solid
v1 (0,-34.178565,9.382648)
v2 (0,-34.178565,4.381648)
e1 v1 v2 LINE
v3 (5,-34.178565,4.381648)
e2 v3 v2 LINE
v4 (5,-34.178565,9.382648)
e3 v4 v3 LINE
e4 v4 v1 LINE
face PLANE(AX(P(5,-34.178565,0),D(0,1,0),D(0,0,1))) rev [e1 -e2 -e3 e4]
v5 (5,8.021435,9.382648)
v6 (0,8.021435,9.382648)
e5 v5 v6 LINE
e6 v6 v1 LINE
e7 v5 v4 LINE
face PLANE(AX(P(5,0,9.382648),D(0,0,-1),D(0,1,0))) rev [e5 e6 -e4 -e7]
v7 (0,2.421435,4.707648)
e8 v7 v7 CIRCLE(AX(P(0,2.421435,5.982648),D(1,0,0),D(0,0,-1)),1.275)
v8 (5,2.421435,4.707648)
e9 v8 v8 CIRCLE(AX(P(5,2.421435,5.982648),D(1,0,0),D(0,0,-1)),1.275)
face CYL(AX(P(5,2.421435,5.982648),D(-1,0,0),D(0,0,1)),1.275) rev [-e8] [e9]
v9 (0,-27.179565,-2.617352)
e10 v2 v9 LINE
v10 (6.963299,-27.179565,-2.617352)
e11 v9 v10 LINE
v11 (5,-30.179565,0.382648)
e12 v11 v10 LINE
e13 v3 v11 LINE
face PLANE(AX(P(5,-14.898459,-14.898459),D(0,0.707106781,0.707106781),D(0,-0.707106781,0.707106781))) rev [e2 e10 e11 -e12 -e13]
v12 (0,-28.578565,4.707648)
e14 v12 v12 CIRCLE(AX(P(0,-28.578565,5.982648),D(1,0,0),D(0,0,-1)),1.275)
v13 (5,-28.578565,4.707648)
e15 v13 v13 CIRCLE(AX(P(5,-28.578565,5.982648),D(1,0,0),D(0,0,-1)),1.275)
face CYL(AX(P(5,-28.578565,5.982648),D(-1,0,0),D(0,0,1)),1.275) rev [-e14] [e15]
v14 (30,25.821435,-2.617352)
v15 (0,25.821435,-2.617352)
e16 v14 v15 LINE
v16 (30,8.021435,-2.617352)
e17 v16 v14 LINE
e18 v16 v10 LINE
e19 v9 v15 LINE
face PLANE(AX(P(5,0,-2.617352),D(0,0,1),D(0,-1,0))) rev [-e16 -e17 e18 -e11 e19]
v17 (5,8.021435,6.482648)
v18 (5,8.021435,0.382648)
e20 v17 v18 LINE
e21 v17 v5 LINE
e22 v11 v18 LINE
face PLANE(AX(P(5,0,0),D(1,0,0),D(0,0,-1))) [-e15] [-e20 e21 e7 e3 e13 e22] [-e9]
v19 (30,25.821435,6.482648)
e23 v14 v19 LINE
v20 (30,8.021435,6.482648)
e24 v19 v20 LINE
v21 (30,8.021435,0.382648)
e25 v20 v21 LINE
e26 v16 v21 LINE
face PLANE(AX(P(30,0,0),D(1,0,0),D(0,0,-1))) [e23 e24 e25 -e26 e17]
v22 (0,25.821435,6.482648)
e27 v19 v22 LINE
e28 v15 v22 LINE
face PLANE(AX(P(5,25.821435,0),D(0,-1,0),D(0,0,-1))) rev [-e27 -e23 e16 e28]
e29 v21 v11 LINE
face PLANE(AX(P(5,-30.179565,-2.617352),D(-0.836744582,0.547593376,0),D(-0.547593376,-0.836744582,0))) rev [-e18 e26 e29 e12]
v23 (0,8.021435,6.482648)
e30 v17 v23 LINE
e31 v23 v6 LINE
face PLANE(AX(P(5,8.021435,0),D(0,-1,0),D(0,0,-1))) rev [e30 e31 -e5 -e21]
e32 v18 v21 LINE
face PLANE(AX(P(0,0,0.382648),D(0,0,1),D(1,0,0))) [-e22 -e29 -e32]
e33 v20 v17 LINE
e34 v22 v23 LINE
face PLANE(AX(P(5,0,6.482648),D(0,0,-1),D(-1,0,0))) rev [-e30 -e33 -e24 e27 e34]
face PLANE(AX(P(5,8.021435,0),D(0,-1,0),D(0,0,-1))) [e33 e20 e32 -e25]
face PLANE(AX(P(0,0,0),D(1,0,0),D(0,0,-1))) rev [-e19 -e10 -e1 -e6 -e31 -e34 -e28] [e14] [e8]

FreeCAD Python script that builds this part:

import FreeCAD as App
import Part
import Sketcher

V = App.Vector
Q = App.Units.Quantity

doc = App.newDocument("Part")
body = doc.addObject("PartDesign::Body", "Body")

# Sketch on YZ plane
sketch1 = doc.addObject("Sketcher::SketchObject", "Sketch")
body.addObject(sketch1)
sketch1.AttachmentSupport = (doc.YZ_Plane, [""])
sketch1.MapMode = "FlatFace"
sketch1.addGeometry(Part.LineSegment(V(-34.2, 4.4, 0), V(-30.2, 0.4, 0)), False)
sketch1.addGeometry(Part.LineSegment(V(-30.2, 0.4, 0), V(8, 0.4, 0)), False)
sketch1.addGeometry(Part.LineSegment(V(8, 0.4, 0), V(8, -2.6, 0)), False)
sketch1.addGeometry(Part.LineSegment(V(8, -2.6, 0), V(25.8, -2.6, 0)), False)
sketch1.addGeometry(Part.LineSegment(V(25.8, -2.6, 0), V(25.8, 6.5, 0)), False)
sketch1.addGeometry(Part.LineSegment(V(25.8, 6.5, 0), V(8, 6.5, 0)), False)
sketch1.addGeometry(Part.LineSegment(V(8, 6.5, 0), V(8, 9.4, 0)), False)
sketch1.addGeometry(Part.LineSegment(V(8, 9.4, 0), V(-34.2, 9.4, 0)), False)
sketch1.addGeometry(Part.LineSegment(V(-34.2, 9.4, 0), V(-34.2, 4.4, 0)), False)
sketch1.addGeometry(Part.Circle(V(-28.6, 6, 0), V(0, 0, 1), 1.3), False)
sketch1.addGeometry(Part.Circle(V(2.4, 6, 0), V(0, 0, 1), 1.3), False)
sketch1.addConstraint(Sketcher.Constraint("Coincident", 0, 2, 1, 1))
sketch1.addConstraint(Sketcher.Constraint("Coincident", 1, 2, 2, 1))
sketch1.addConstraint(Sketcher.Constraint("Coincident", 2, 2, 3, 1))
sketch1.addConstraint(Sketcher.Constraint("Coincident", 3, 2, 4, 1))
sketch1.addConstraint(Sketcher.Constraint("Coincident", 4, 2, 5, 1))
sketch1.addConstraint(Sketcher.Constraint("Coincident", 5, 2, 6, 1))
sketch1.addConstraint(Sketcher.Constraint("Coincident", 6, 2, 7, 1))
sketch1.addConstraint(Sketcher.Constraint("Coincident", 7, 2, 8, 1))
sketch1.addConstraint(Sketcher.Constraint("Coincident", 8, 2, 0, 1))
sketch1.addConstraint(Sketcher.Constraint("Horizontal", 1))
sketch1.addConstraint(Sketcher.Constraint("Vertical", 2))
sketch1.addConstraint(Sketcher.Constraint("Horizontal", 3))
sketch1.addConstraint(Sketcher.Constraint("Vertical", 4))
sketch1.addConstraint(Sketcher.Constraint("Horizontal", 5))
sketch1.addConstraint(Sketcher.Constraint("Vertical", 6))
sketch1.addConstraint(Sketcher.Constraint("Horizontal", 7))
sketch1.addConstraint(Sketcher.Constraint("Vertical", 8))
sketch1.addConstraint(Sketcher.Constraint("Equal", 9, 10))
sketch1.addConstraint(Sketcher.Constraint("Horizontal", 9, 3, 10, 3))
sketch1.addConstraint(Sketcher.Constraint("Vertical", 2, 2, 5, 2))
sketch1.addConstraint(Sketcher.Constraint("Diameter", 9, 2.55))
sketch1.addConstraint(Sketcher.Constraint("DistanceY", 2, 2, 2, 1, 3.0))
sketch1.addConstraint(Sketcher.Constraint("Angle", 0, Q("-45 deg")))
sketch1.addConstraint(Sketcher.Constraint("DistanceX", 3, 1, 3, 2, 17.8))
sketch1.addConstraint(Sketcher.Constraint("DistanceX", 7, 2, 7, 1, 42.2))
sketch1.addConstraint(Sketcher.Constraint("DistanceY", 4, 1, 4, 2, 9.1))
sketch1.addConstraint(Sketcher.Constraint("DistanceY", 6, 1, 6, 2, 2.9))
sketch1.addConstraint(Sketcher.Constraint("DistanceX", 9, 3, 10, 3, 31.0))
sketch1.addConstraint(Sketcher.Constraint("DistanceY", 0, 2, 9, 3, 5.6))
sketch1.addConstraint(Sketcher.Constraint("DistanceX", 10, 3, 1, 2, 5.6))
sketch1.addConstraint(Sketcher.Constraint("DistanceX", 1, 1, 1, 2, 38.201))
sketch1.addConstraint(Sketcher.Constraint("DistanceX", 9, 3, -1, 1, 28.578565))
sketch1.addConstraint(Sketcher.Constraint("DistanceY", -1, 1, 9, 3, 5.982648))
pad1 = doc.addObject("PartDesign::Pad", "Pad")
body.addObject(pad1)
pad1.Profile = sketch1
pad1.Length = 5

# Sketch on YZ plane
sketch2 = doc.addObject("Sketcher::SketchObject", "Sketch001")
body.addObject(sketch2)
sketch2.AttachmentSupport = (doc.YZ_Plane, [""])
sketch2.MapMode = "FlatFace"
sketch2.AttachmentOffset = App.Placement(V(0, 0, 5), App.Rotation())
sketch2.addGeometry(Part.LineSegment(V(26, 6, 0), V(8, 6, 0)), False)
sketch2.addGeometry(Part.LineSegment(V(8, 6, 0), V(8, -3, 0)), False)
sketch2.addGeometry(Part.LineSegment(V(8, -3, 0), V(26, -3, 0)), False)
sketch2.addGeometry(Part.LineSegment(V(26, -3, 0), V(26, 6, 0)), False)
sketch2.addConstraint(Sketcher.Constraint("Coincident", 0, 2, 1, 1))
sketch2.addConstraint(Sketcher.Constraint("Coincident", 1, 2, 2, 1))
sketch2.addConstraint(Sketcher.Constraint("Coincident", 2, 2, 3, 1))
sketch2.addConstraint(Sketcher.Constraint("Coincident", 3, 2, 0, 1))
sketch2.addConstraint(Sketcher.Constraint("Horizontal", 0))
sketch2.addConstraint(Sketcher.Constraint("Vertical", 1))
sketch2.addConstraint(Sketcher.Constraint("Horizontal", 2))
sketch2.addConstraint(Sketcher.Constraint("Vertical", 3))
sketch2.addConstraint(Sketcher.Constraint("DistanceX", 0, 2, 0, 1, 17.8))
sketch2.addConstraint(Sketcher.Constraint("DistanceY", 1, 2, 1, 1, 9.1))
sketch2.addConstraint(Sketcher.Constraint("DistanceX", -1, 1, 0, 2, 8.021435))
sketch2.addConstraint(Sketcher.Constraint("DistanceY", -1, 1, 0, 2, 6.482648))
pad2 = doc.addObject("PartDesign::Pad", "Pad001")
body.addObject(pad2)
pad2.Profile = sketch2
pad2.Length = 25

# Sketch on XY plane
sketch3 = doc.addObject("Sketcher::SketchObject", "Sketch002")
body.addObject(sketch3)
sketch3.AttachmentSupport = (doc.XY_Plane, [""])
sketch3.MapMode = "FlatFace"
sketch3.AttachmentOffset = App.Placement(V(0, 0, 0.382648), App.Rotation())
sketch3.addGeometry(Part.LineSegment(V(0, 8, 0), V(30, 8, 0)), False)
sketch3.addGeometry(Part.LineSegment(V(30, 8, 0), V(5, -30, 0)), False)
sketch3.addGeometry(Part.LineSegment(V(5, -30, 0), V(0, -30, 0)), False)
sketch3.addGeometry(Part.LineSegment(V(0, -30, 0), V(0, 8, 0)), False)
sketch3.addConstraint(Sketcher.Constraint("Coincident", 0, 2, 1, 1))
sketch3.addConstraint(Sketcher.Constraint("Coincident", 1, 2, 2, 1))
sketch3.addConstraint(Sketcher.Constraint("Coincident", 2, 2, 3, 1))
sketch3.addConstraint(Sketcher.Constraint("Coincident", 3, 2, 0, 1))
sketch3.addConstraint(Sketcher.Constraint("Horizontal", 0))
sketch3.addConstraint(Sketcher.Constraint("Horizontal", 2))
sketch3.addConstraint(Sketcher.Constraint("Vertical", 3))
sketch3.addConstraint(Sketcher.Constraint("PointOnObject", 2, 2, -2))
sketch3.addConstraint(Sketcher.Constraint("DistanceX", 0, 1, 0, 2, 30.0))
sketch3.addConstraint(Sketcher.Constraint("DistanceX", 2, 2, 2, 1, 5.0))
sketch3.addConstraint(Sketcher.Constraint("DistanceY", 3, 1, 3, 2, 38.201))
sketch3.addConstraint(Sketcher.Constraint("DistanceY", -1, 1, 0, 2, 8.021435))
pad3 = doc.addObject("PartDesign::Pad", "Pad002")
body.addObject(pad3)
pad3.Profile = sketch3
pad3.Length = 3
pad3.Reversed = True

# Sketch on YZ plane
sketch4 = doc.addObject("Sketcher::SketchObject", "Sketch003")
body.addObject(sketch4)
sketch4.AttachmentSupport = (doc.YZ_Plane, [""])
sketch4.MapMode = "FlatFace"
sketch4.AttachmentOffset = App.Placement(V(0, 0, 5), App.Rotation())
sketch4.addGeometry(Part.LineSegment(V(-27.2, -2.6, 0), V(-30.2, 0.4, 0)), False)
sketch4.addGeometry(Part.LineSegment(V(-30.2, 0.4, 0), V(-30.2, -2.6, 0)), False)
sketch4.addGeometry(Part.LineSegment(V(-30.2, -2.6, 0), V(-27.2, -2.6, 0)), False)
sketch4.addConstraint(Sketcher.Constraint("Coincident", 0, 2, 1, 1))
sketch4.addConstraint(Sketcher.Constraint("Coincident", 1, 2, 2, 1))
sketch4.addConstraint(Sketcher.Constraint("Coincident", 2, 2, 0, 1))
sketch4.addConstraint(Sketcher.Constraint("Vertical", 1))
sketch4.addConstraint(Sketcher.Constraint("Horizontal", 2))
sketch4.addConstraint(Sketcher.Constraint("Equal", 2, 1))
sketch4.addConstraint(Sketcher.Constraint("DistanceX", 2, 1, 2, 2, 3.0))
sketch4.addConstraint(Sketcher.Constraint("DistanceX", 0, 2, -1, 1, 30.179565))
sketch4.addConstraint(Sketcher.Constraint("DistanceY", -1, 1, 0, 2, 0.382648))
pocket1 = doc.addObject("PartDesign::Pocket", "Pocket")
body.addObject(pocket1)
pocket1.Profile = sketch4
pocket1.Length = 30
pocket1.Midplane = True

doc.recompute()
